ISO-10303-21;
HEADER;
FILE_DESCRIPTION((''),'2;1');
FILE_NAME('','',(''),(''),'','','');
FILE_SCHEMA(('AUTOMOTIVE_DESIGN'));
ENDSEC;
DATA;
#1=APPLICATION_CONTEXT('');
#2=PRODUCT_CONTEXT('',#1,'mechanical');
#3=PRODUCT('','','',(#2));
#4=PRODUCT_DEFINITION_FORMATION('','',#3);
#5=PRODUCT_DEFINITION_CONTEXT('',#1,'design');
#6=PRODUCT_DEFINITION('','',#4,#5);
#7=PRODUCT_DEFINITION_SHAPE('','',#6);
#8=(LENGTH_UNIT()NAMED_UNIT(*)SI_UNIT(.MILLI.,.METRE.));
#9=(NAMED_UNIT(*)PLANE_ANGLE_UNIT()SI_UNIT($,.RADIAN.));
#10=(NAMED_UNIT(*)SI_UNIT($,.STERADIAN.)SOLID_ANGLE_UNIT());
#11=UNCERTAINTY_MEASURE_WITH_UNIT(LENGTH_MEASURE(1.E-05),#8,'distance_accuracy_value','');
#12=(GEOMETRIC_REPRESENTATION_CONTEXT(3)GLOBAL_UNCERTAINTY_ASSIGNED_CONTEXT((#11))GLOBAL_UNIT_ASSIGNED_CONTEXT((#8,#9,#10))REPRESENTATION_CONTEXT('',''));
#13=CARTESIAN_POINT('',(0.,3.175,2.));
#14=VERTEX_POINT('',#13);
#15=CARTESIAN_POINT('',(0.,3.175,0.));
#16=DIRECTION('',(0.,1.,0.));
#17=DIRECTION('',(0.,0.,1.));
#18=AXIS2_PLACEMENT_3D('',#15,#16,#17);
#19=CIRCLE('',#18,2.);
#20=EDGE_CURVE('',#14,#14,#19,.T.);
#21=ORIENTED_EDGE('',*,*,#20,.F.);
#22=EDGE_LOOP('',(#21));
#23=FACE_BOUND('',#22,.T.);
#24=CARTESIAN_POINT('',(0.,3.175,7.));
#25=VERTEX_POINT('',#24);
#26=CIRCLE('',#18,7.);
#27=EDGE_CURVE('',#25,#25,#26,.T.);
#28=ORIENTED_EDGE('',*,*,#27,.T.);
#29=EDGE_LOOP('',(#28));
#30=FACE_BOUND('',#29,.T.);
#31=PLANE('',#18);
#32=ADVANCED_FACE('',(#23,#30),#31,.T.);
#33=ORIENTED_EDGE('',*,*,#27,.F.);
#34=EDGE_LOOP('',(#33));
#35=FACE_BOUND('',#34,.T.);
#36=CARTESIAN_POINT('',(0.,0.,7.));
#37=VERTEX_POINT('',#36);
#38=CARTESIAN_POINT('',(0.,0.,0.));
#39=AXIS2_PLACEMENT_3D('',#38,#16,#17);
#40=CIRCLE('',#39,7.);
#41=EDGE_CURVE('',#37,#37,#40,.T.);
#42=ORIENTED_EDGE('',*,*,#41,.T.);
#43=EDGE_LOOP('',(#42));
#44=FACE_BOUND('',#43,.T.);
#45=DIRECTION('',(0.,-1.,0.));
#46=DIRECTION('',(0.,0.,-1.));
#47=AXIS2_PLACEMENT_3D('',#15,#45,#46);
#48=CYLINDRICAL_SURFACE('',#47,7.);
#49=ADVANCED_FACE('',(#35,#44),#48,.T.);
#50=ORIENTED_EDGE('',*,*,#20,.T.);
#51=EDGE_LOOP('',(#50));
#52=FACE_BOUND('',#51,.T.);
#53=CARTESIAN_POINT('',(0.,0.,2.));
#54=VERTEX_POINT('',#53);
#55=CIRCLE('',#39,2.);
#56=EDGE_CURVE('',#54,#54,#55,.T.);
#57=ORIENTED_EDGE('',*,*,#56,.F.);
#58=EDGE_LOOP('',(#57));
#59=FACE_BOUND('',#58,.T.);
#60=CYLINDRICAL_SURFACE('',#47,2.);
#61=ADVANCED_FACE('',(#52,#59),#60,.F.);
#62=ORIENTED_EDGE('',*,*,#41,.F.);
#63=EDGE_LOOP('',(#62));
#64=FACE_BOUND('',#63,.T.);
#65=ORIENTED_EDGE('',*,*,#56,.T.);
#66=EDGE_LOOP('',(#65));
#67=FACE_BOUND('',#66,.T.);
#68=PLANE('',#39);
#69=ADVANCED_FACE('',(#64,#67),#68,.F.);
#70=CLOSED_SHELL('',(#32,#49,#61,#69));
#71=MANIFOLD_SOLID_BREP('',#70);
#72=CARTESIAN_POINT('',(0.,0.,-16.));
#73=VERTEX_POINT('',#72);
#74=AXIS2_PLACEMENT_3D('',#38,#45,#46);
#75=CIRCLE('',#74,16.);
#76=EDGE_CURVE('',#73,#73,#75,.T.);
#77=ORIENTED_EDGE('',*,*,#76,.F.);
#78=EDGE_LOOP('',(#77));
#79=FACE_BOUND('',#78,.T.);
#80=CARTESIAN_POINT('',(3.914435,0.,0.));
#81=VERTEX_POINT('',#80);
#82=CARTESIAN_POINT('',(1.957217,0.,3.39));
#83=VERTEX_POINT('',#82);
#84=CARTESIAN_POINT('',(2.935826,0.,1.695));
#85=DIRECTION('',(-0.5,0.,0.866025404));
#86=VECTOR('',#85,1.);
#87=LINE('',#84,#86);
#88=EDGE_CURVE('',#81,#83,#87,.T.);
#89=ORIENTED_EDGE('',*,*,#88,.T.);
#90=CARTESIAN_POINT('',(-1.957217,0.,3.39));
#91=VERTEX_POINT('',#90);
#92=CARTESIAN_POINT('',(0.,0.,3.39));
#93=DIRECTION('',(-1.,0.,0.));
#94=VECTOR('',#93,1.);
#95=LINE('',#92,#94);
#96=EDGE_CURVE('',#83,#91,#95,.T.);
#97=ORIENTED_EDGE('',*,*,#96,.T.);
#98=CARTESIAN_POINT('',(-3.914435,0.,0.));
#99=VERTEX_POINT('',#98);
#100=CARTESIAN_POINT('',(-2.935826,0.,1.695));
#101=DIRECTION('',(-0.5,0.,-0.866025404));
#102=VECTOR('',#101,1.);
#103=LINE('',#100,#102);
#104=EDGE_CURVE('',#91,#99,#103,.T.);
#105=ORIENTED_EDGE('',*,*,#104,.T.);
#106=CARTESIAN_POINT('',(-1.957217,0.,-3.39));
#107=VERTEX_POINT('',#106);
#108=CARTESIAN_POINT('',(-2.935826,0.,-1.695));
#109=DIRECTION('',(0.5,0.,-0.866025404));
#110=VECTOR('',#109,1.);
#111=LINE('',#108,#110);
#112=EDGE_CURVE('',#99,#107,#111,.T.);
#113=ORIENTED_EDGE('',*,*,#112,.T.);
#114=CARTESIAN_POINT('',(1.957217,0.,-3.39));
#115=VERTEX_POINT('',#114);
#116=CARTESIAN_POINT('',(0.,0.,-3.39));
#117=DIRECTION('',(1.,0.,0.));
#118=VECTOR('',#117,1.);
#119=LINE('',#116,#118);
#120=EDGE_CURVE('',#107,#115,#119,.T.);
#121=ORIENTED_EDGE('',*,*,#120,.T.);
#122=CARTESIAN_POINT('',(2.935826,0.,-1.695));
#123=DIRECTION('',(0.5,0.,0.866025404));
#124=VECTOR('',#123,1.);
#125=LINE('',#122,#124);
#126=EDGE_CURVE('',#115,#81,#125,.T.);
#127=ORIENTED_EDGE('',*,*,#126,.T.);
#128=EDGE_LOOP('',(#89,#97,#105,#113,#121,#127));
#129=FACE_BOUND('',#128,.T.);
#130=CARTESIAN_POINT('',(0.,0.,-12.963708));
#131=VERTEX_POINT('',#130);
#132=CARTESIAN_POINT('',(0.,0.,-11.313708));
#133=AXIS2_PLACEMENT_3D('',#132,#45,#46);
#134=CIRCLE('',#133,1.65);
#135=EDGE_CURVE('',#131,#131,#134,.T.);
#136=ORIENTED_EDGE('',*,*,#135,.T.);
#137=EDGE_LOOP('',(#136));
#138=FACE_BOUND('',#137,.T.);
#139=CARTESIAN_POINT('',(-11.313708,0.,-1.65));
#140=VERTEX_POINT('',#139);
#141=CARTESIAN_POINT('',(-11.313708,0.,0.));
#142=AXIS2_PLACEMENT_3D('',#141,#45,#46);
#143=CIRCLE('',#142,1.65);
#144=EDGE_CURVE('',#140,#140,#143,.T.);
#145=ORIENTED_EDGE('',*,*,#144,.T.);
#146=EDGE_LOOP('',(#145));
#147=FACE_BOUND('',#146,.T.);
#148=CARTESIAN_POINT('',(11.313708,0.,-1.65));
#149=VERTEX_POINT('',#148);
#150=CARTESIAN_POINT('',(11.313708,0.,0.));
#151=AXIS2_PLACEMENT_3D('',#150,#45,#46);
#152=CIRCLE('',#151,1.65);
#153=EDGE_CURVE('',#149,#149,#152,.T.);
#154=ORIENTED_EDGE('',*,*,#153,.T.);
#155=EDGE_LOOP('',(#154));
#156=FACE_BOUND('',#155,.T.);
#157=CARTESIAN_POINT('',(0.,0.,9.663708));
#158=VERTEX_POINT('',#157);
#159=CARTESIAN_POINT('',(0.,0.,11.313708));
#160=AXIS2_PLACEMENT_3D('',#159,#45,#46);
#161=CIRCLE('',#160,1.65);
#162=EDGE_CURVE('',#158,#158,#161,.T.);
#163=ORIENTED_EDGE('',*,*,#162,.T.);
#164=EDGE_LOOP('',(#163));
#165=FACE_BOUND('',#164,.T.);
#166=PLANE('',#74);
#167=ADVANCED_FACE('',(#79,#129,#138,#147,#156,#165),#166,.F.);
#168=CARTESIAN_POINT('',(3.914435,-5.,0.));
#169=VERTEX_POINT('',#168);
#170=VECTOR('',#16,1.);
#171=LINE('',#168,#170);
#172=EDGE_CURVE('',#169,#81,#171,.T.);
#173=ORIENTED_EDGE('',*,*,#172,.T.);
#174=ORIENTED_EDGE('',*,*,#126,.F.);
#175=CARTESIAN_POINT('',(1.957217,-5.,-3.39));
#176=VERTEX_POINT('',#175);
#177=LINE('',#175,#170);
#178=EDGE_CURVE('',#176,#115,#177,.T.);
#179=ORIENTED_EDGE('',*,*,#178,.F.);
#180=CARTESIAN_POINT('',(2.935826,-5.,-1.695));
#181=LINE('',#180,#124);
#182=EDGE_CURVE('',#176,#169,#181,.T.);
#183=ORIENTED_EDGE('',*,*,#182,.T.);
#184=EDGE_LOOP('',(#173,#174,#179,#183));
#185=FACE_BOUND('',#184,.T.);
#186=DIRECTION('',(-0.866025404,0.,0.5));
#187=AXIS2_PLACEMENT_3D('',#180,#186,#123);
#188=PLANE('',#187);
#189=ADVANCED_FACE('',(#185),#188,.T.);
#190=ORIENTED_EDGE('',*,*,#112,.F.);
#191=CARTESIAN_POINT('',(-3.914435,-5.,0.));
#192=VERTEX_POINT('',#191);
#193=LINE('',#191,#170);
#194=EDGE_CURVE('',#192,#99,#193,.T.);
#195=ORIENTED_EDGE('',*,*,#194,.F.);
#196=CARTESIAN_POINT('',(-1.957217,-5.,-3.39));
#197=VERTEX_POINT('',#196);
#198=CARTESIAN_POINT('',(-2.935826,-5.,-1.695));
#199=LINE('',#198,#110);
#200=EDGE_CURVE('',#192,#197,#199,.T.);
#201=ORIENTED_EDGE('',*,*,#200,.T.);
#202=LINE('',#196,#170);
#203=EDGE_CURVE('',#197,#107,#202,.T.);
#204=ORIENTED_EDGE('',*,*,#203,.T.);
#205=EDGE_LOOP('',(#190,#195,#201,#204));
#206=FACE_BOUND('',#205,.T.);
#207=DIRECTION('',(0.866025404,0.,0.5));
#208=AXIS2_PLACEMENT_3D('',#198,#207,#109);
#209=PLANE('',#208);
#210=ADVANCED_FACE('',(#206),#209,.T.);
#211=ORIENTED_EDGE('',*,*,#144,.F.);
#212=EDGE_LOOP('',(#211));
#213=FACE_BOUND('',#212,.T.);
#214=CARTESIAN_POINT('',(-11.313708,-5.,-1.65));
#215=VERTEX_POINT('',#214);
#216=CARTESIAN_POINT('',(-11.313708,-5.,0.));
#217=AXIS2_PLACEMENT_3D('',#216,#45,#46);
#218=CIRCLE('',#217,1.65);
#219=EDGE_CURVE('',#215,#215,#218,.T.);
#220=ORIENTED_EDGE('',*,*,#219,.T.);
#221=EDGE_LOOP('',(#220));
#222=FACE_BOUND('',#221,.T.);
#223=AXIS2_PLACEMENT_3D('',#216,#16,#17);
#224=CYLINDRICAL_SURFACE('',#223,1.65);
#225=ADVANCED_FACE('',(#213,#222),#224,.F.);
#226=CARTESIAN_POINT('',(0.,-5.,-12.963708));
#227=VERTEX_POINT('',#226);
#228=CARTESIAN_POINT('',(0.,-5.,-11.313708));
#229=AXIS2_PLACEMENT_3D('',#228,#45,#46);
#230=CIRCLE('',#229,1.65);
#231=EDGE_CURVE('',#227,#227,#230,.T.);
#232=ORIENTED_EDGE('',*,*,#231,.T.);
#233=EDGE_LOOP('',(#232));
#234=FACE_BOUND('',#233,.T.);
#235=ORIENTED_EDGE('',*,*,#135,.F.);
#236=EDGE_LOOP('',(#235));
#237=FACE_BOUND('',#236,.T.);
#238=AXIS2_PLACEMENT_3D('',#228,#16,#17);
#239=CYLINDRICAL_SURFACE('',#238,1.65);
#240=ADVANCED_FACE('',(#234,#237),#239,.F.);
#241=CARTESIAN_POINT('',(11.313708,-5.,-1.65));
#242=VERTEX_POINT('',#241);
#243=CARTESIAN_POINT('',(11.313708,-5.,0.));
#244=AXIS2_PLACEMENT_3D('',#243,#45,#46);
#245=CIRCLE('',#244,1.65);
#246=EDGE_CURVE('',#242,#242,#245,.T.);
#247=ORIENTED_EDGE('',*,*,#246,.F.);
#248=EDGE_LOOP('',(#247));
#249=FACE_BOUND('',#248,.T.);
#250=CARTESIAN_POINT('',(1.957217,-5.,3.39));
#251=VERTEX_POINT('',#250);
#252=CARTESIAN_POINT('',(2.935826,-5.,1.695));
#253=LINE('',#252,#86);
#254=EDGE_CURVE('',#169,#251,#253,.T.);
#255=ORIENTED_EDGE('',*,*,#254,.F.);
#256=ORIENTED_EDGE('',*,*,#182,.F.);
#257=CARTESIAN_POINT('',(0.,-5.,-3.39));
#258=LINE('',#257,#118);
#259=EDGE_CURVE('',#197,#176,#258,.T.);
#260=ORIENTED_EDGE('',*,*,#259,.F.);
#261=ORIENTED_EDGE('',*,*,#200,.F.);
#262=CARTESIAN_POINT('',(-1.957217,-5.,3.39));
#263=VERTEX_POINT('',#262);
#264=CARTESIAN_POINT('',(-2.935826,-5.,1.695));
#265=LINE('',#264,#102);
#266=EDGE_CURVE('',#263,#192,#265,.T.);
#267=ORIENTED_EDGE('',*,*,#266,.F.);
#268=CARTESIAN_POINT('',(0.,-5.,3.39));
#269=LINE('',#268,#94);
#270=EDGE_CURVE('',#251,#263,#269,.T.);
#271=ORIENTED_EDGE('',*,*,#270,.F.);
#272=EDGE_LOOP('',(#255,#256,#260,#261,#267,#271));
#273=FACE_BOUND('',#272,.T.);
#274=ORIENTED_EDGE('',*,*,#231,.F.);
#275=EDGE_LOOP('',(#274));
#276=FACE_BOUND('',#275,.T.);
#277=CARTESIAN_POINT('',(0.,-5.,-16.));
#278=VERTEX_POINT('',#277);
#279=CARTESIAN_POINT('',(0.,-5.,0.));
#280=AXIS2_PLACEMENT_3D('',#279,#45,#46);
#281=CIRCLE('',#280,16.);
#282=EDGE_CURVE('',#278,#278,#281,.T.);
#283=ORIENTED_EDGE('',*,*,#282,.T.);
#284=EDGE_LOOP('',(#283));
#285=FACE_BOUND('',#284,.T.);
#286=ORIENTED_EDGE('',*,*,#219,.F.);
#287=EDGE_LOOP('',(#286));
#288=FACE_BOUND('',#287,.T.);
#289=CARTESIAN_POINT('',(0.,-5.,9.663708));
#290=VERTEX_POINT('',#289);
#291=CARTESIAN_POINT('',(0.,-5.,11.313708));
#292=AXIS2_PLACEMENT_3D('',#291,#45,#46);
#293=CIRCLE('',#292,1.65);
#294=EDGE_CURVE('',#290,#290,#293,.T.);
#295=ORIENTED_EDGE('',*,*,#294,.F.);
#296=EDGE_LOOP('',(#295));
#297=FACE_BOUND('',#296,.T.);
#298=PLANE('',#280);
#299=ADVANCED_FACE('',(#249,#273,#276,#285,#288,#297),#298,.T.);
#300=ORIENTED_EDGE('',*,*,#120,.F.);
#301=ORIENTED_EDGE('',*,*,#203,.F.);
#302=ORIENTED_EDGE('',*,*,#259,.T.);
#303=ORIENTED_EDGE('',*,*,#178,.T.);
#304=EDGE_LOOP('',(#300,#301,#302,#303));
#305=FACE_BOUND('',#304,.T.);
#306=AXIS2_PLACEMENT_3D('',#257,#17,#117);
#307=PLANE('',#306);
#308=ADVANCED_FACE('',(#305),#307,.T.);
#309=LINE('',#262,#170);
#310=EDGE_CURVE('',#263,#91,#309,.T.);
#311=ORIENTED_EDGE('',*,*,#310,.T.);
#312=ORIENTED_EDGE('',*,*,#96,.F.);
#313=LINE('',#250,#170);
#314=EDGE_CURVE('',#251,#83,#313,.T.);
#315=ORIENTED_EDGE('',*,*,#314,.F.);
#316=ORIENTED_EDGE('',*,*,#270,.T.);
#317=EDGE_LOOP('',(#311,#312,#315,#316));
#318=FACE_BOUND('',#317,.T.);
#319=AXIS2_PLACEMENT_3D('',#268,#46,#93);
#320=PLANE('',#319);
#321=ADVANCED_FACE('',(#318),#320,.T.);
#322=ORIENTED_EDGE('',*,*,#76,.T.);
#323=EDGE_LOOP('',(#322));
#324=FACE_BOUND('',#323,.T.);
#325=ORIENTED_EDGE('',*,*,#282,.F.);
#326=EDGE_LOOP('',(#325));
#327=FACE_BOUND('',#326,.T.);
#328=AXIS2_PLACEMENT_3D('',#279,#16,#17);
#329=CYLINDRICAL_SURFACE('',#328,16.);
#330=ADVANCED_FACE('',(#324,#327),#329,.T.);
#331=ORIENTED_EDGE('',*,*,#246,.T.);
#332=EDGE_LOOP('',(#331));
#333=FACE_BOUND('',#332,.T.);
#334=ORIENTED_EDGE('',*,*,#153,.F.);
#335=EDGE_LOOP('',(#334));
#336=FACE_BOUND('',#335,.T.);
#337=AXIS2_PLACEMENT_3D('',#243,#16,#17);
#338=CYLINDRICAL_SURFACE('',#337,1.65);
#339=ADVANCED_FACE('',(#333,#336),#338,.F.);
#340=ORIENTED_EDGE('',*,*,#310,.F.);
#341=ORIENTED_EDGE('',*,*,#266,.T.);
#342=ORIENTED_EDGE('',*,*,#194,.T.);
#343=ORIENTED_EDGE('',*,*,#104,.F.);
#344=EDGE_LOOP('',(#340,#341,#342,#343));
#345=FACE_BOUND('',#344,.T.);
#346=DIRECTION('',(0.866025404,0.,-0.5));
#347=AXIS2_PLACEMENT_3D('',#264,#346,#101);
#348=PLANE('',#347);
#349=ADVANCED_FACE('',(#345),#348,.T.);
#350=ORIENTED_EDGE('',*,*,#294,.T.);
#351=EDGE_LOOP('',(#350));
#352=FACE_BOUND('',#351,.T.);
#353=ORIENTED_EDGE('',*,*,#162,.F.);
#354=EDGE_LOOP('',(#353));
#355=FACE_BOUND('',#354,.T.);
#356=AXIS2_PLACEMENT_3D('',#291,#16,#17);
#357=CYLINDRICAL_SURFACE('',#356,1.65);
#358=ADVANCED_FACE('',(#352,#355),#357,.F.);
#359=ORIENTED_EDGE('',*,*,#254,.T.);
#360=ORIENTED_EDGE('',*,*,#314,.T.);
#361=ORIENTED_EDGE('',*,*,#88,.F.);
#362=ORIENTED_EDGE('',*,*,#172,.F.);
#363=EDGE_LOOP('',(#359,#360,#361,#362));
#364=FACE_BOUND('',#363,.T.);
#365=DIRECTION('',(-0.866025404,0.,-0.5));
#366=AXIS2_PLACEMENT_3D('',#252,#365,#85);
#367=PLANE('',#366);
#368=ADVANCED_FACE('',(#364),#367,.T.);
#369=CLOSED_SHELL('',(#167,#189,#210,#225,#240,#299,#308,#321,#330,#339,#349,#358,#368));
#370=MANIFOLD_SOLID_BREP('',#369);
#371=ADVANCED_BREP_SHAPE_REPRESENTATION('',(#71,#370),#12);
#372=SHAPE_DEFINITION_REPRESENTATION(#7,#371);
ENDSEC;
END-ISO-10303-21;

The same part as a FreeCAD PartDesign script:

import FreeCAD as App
import Part
import Sketcher
Q = App.Units.Quantity


def add_polygon(sketch, points):
    """Adds a closed chain of lines whose ends are joined by coincident constraints."""
    first, n = sketch.GeometryCount, len(points)
    for a, b in zip(points, points[1:] + points[:1]):
        sketch.addGeometry(Part.LineSegment(App.Vector(*a, 0), App.Vector(*b, 0)), False)
    for i in range(n):
        sketch.addConstraint(Sketcher.Constraint("Coincident", first + i, 2, first + (i + 1) % n, 1))

doc = App.newDocument("Part")
params = doc.addObject("Spreadsheet::Sheet", "Params")
for row, (alias, value) in enumerate([
    ("sketch1_diameter", "14 mm"),
    ("sketch1_diameter2", "4 mm"),
    ("pad1_length", "3.175 mm"),
    ("sketch2_diameter", "32 mm"),
    ("sketch2_diameter2", "3.3 mm"),
    ("pad2_length", "5 mm"),
], start=1):
    params.set(f"A{row}", alias)
    params.set(f"B{row}", "=" + value)
    params.setAlias(f"B{row}", alias)

body = doc.addObject("PartDesign::Body", "Body")

# Sketch on XZ plane
sketch1 = doc.addObject("Sketcher::SketchObject", "Sketch")
body.addObject(sketch1)
sketch1.AttachmentSupport = (doc.XZ_Plane, [""])
sketch1.MapMode = "FlatFace"
sketch1.addGeometry(Part.Circle(App.Vector(0, 0, 0), App.Vector(0, 0, 1), 7), False)
sketch1.addGeometry(Part.Circle(App.Vector(0, 0, 0), App.Vector(0, 0, 1), 2), False)
sketch1.addConstraint(Sketcher.Constraint("Coincident", 0, 3, -1, 1))
sketch1.addConstraint(Sketcher.Constraint("Coincident", 1, 3, -1, 1))
sketch1.addConstraint(Sketcher.Constraint("Diameter", 0, Q("14 mm")))
sketch1.addConstraint(Sketcher.Constraint("Diameter", 1, Q("4 mm")))
sketch1.setExpression("Constraints[2]", "Params.sketch1_diameter")
sketch1.setExpression("Constraints[3]", "Params.sketch1_diameter2")
pad1 = doc.addObject("PartDesign::Pad", "Pad")
body.addObject(pad1)
pad1.Profile = sketch1
pad1.setExpression("Length", "Params.pad1_length")
pad1.Reversed = True
body2 = doc.addObject("PartDesign::Body", "Body001")

# Sketch on XZ plane
sketch2 = doc.addObject("Sketcher::SketchObject", "Sketch001")
body2.addObject(sketch2)
sketch2.AttachmentSupport = (doc.getObject("XZ_Plane001"), [""])
sketch2.MapMode = "FlatFace"
sketch2.addGeometry(Part.Circle(App.Vector(0, 0, 0), App.Vector(0, 0, 1), 16), False)  # 0
sketch2.addGeometry(Part.Circle(App.Vector(0, 11.3, 0), App.Vector(0, 0, 1), 1.6), False)  # 1
sketch2.addGeometry(Part.Circle(App.Vector(-11.3, 0, 0), App.Vector(0, 0, 1), 1.6), False)  # 2
add_polygon(sketch2, [(-2, -3.4), (-3.9, 0), (-2, 3.4), (2, 3.4), (3.9, 0), (2, -3.4)])  # lines 3-8
sketch2.addGeometry(Part.Circle(App.Vector(11.3, 0, 0), App.Vector(0, 0, 1), 1.6), False)  # 9
sketch2.addGeometry(Part.Circle(App.Vector(0, -11.3, 0), App.Vector(0, 0, 1), 1.6), False)  # 10
sketch2.addConstraint(Sketcher.Constraint("Horizontal", 5))
sketch2.addConstraint(Sketcher.Constraint("Horizontal", 8))
sketch2.addConstraint(Sketcher.Constraint("Coincident", 0, 3, -1, 1))
sketch2.addConstraint(Sketcher.Constraint("Equal", 1, 2))
sketch2.addConstraint(Sketcher.Constraint("Equal", 2, 9))
sketch2.addConstraint(Sketcher.Constraint("Equal", 9, 10))
sketch2.addConstraint(Sketcher.Constraint("Symmetric", 2, 3, 9, 3, -1, 1))
sketch2.addConstraint(Sketcher.Constraint("Symmetric", 1, 3, 10, 3, -1, 1))
sketch2.addConstraint(Sketcher.Constraint("Symmetric", 3, 2, 6, 2, -1, 1))
sketch2.addConstraint(Sketcher.Constraint("Symmetric", 4, 2, 7, 2, -1, 1))
sketch2.addConstraint(Sketcher.Constraint("PointOnObject", 1, 3, -2))
sketch2.addConstraint(Sketcher.Constraint("PointOnObject", 2, 3, -1))
sketch2.addConstraint(Sketcher.Constraint("PointOnObject", 3, 2, -1))
sketch2.addConstraint(Sketcher.Constraint("Parallel", 3, 6))
sketch2.addConstraint(Sketcher.Constraint("Vertical", 5, 2, 7, 2))
sketch2.addConstraint(Sketcher.Constraint("Diameter", 0, Q("32 mm")))
sketch2.addConstraint(Sketcher.Constraint("Diameter", 1, Q("3.3 mm")))
sketch2.addConstraint(Sketcher.Constraint("Angle", 3, Q("120 deg")))
sketch2.addConstraint(Sketcher.Constraint("DistanceY", -1, 1, 4, 2, Q("3.39 mm")))
sketch2.addConstraint(Sketcher.Constraint("DistanceX", 5, 1, 5, 2, Q("3.914435 mm")))
sketch2.addConstraint(Sketcher.Constraint("DistanceY", -1, 1, 1, 3, Q("11.313708 mm")))
sketch2.addConstraint(Sketcher.Constraint("DistanceX", 2, 3, -1, 1, Q("11.313708 mm")))
sketch2.setExpression("Constraints[21]", "Params.sketch2_diameter")
sketch2.setExpression("Constraints[22]", "Params.sketch2_diameter2")
pad2 = doc.addObject("PartDesign::Pad", "Pad001")
body2.addObject(pad2)
pad2.Profile = sketch2
pad2.setExpression("Length", "Params.pad2_length")

doc.recompute()
